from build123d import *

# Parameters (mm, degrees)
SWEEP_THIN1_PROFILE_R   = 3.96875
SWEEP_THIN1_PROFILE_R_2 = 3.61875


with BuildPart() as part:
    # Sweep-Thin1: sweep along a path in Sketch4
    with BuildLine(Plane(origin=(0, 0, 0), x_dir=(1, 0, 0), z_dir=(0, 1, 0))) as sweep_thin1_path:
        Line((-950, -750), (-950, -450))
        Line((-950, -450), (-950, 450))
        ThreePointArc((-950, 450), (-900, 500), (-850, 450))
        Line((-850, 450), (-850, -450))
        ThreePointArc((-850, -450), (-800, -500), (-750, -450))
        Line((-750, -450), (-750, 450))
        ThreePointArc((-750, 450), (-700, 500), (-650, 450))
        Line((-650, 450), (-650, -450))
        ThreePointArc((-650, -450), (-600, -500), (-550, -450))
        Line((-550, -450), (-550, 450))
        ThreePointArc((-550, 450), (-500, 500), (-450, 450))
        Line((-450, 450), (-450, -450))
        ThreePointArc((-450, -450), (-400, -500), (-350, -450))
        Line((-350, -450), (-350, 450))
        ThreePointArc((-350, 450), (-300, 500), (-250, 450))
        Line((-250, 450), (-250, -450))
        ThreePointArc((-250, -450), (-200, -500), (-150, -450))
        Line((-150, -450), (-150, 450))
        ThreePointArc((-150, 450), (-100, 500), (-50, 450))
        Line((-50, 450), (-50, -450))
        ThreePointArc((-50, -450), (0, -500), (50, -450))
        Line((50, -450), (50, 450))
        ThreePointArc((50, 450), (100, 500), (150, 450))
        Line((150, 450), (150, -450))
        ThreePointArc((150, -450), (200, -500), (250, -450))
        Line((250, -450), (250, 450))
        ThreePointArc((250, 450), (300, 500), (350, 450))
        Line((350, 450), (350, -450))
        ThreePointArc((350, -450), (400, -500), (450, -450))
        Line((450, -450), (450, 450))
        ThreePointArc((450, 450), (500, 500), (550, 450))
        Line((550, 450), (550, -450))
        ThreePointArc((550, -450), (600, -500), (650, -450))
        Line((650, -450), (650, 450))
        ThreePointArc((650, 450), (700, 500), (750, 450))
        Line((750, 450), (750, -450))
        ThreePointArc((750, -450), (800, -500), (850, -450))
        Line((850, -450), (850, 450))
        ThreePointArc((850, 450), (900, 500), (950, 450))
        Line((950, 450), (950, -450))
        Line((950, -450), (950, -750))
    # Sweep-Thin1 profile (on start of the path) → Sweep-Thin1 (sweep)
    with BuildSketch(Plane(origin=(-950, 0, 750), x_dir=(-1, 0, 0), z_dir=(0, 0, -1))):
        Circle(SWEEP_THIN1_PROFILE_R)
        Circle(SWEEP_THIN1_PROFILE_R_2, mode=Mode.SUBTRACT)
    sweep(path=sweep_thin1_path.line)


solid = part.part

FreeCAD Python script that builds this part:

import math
import FreeCAD as App
import Part
import Sketcher

V = App.Vector

doc = App.newDocument("Part")
params = doc.addObject("Spreadsheet::Sheet", "Params")
for row, (alias, value) in enumerate([
    ("sketch2_radius", "50 mm"),
    ("sketch2_height", "1200 mm"),
    ("sketch2_height2", "900 mm"),
], start=1):
    params.set(f"A{row}", alias)
    params.set(f"B{row}", "=" + value)
    params.setAlias(f"B{row}", alias)

body = doc.addObject("PartDesign::Body", "Body")

# Sketch on XY plane
sketch1 = body.newObject("Sketcher::SketchObject", "Sketch")
sketch1.AttachmentSupport = (doc.getObject("XY_Plane"), [""])
sketch1.MapMode = "FlatFace"
sketch1.AttachmentOffset = App.Placement(V(0, 0, 750), App.Rotation())
sketch1.addGeometry([
    Part.Circle(V(-950, 0, 0), V(0, 0, 1), 4),
    Part.Circle(V(-950, 0, 0), V(0, 0, 1), 3.6),
], False)
sketch1.addConstraint([
    Sketcher.Constraint("Coincident", 1, 3, 0, 3),
    Sketcher.Constraint("PointOnObject", 0, 3, -1),
    Sketcher.Constraint("DistanceX", 0, 3, -1, 1, 950.0),
    Sketcher.Constraint("Diameter", 0, 7.9375),
    Sketcher.Constraint("Diameter", 1, 7.2375),
])

# Sketch on XZ plane
sketch2 = body.newObject("Sketcher::SketchObject", "Sketch001")
sketch2.AttachmentSupport = (doc.getObject("XZ_Plane"), [""])
sketch2.MapMode = "FlatFace"
sketch2.addGeometry([
    Part.LineSegment(V(-950, 750, 0), V(-950, -450, 0)),  # 0
    Part.ArcOfCircle(Part.Circle(V(-900, -450, 0), V(0, 0, 1), 50), math.radians(180), math.radians(360)),  # 1
    Part.LineSegment(V(-850, -450, 0), V(-850, 450, 0)),  # 2
    Part.ArcOfCircle(Part.Circle(V(-800, 450, 0), V(0, 0, 1), 50), math.radians(0), math.radians(180)),  # 3
    Part.LineSegment(V(-750, 450, 0), V(-750, -450, 0)),  # 4
    Part.ArcOfCircle(Part.Circle(V(-700, -450, 0), V(0, 0, 1), 50), math.radians(180), math.radians(360)),  # 5
    Part.LineSegment(V(-650, -450, 0), V(-650, 450, 0)),  # 6
    Part.ArcOfCircle(Part.Circle(V(-600, 450, 0), V(0, 0, 1), 50), math.radians(0), math.radians(180)),  # 7
    Part.LineSegment(V(-550, 450, 0), V(-550, -450, 0)),  # 8
    Part.ArcOfCircle(Part.Circle(V(-500, -450, 0), V(0, 0, 1), 50), math.radians(180), math.radians(360)),  # 9
    Part.LineSegment(V(-450, -450, 0), V(-450, 450, 0)),  # 10
    Part.ArcOfCircle(Part.Circle(V(-400, 450, 0), V(0, 0, 1), 50), math.radians(0), math.radians(180)),  # 11
    Part.LineSegment(V(-350, 450, 0), V(-350, -450, 0)),  # 12
    Part.ArcOfCircle(Part.Circle(V(-300, -450, 0), V(0, 0, 1), 50), math.radians(180), math.radians(360)),  # 13
    Part.LineSegment(V(-250, -450, 0), V(-250, 450, 0)),  # 14
    Part.ArcOfCircle(Part.Circle(V(-200, 450, 0), V(0, 0, 1), 50), math.radians(0), math.radians(180)),  # 15
    Part.LineSegment(V(-150, 450, 0), V(-150, -450, 0)),  # 16
    Part.ArcOfCircle(Part.Circle(V(-100, -450, 0), V(0, 0, 1), 50), math.radians(180), math.radians(360)),  # 17
    Part.LineSegment(V(-50, -450, 0), V(-50, 450, 0)),  # 18
    Part.ArcOfCircle(Part.Circle(V(0, 450, 0), V(0, 0, 1), 50), math.radians(0), math.radians(180)),  # 19
    Part.LineSegment(V(50, 450, 0), V(50, -450, 0)),  # 20
    Part.ArcOfCircle(Part.Circle(V(100, -450, 0), V(0, 0, 1), 50), math.radians(180), math.radians(360)),  # 21
    Part.LineSegment(V(150, -450, 0), V(150, 450, 0)),  # 22
    Part.ArcOfCircle(Part.Circle(V(200, 450, 0), V(0, 0, 1), 50), math.radians(0), math.radians(180)),  # 23
    Part.LineSegment(V(250, 450, 0), V(250, -450, 0)),  # 24
    Part.ArcOfCircle(Part.Circle(V(300, -450, 0), V(0, 0, 1), 50), math.radians(180), math.radians(360)),  # 25
    Part.LineSegment(V(350, -450, 0), V(350, 450, 0)),  # 26
    Part.ArcOfCircle(Part.Circle(V(400, 450, 0), V(0, 0, 1), 50), math.radians(0), math.radians(180)),  # 27
    Part.LineSegment(V(450, 450, 0), V(450, -450, 0)),  # 28
    Part.ArcOfCircle(Part.Circle(V(500, -450, 0), V(0, 0, 1), 50), math.radians(180), math.radians(360)),  # 29
    Part.LineSegment(V(550, -450, 0), V(550, 450, 0)),  # 30
    Part.ArcOfCircle(Part.Circle(V(600, 450, 0), V(0, 0, 1), 50), math.radians(0), math.radians(180)),  # 31
    Part.LineSegment(V(650, 450, 0), V(650, -450, 0)),  # 32
    Part.ArcOfCircle(Part.Circle(V(700, -450, 0), V(0, 0, 1), 50), math.radians(180), math.radians(360)),  # 33
    Part.LineSegment(V(750, -450, 0), V(750, 450, 0)),  # 34
    Part.ArcOfCircle(Part.Circle(V(800, 450, 0), V(0, 0, 1), 50), math.radians(0), math.radians(180)),  # 35
    Part.LineSegment(V(850, 450, 0), V(850, -450, 0)),  # 36
    Part.ArcOfCircle(Part.Circle(V(900, -450, 0), V(0, 0, 1), 50), math.radians(180), math.radians(360)),  # 37
    Part.LineSegment(V(950, -450, 0), V(950, 750, 0)),  # 38
], False)
sketch2.addConstraint([
    Sketcher.Constraint("Tangent", 0, 2, 1, 1),
    Sketcher.Constraint("Tangent", 1, 2, 2, 1),
    Sketcher.Constraint("Tangent", 2, 2, 3, 2),
    Sketcher.Constraint("Tangent", 3, 1, 4, 1),
    Sketcher.Constraint("Tangent", 4, 2, 5, 1),
    Sketcher.Constraint("Tangent", 5, 2, 6, 1),
    Sketcher.Constraint("Tangent", 6, 2, 7, 2),
    Sketcher.Constraint("Tangent", 7, 1, 8, 1),
    Sketcher.Constraint("Tangent", 8, 2, 9, 1),
    Sketcher.Constraint("Tangent", 9, 2, 10, 1),
    Sketcher.Constraint("Tangent", 10, 2, 11, 2),
    Sketcher.Constraint("Tangent", 11, 1, 12, 1),
    Sketcher.Constraint("Tangent", 12, 2, 13, 1),
    Sketcher.Constraint("Tangent", 13, 2, 14, 1),
    Sketcher.Constraint("Tangent", 14, 2, 15, 2),
    Sketcher.Constraint("Tangent", 15, 1, 16, 1),
    Sketcher.Constraint("Tangent", 16, 2, 17, 1),
    Sketcher.Constraint("Tangent", 17, 2, 18, 1),
    Sketcher.Constraint("Tangent", 18, 2, 19, 2),
    Sketcher.Constraint("Tangent", 19, 1, 20, 1),
    Sketcher.Constraint("Tangent", 20, 2, 21, 1),
    Sketcher.Constraint("Tangent", 21, 2, 22, 1),
    Sketcher.Constraint("Tangent", 22, 2, 23, 2),
    Sketcher.Constraint("Tangent", 23, 1, 24, 1),
    Sketcher.Constraint("Tangent", 24, 2, 25, 1),
    Sketcher.Constraint("Tangent", 25, 2, 26, 1),
    Sketcher.Constraint("Tangent", 26, 2, 27, 2),
    Sketcher.Constraint("Tangent", 27, 1, 28, 1),
    Sketcher.Constraint("Tangent", 28, 2, 29, 1),
    Sketcher.Constraint("Tangent", 29, 2, 30, 1),
    Sketcher.Constraint("Tangent", 30, 2, 31, 2),
    Sketcher.Constraint("Tangent", 31, 1, 32, 1),
    Sketcher.Constraint("Tangent", 32, 2, 33, 1),
    Sketcher.Constraint("Tangent", 33, 2, 34, 1),
    Sketcher.Constraint("Tangent", 34, 2, 35, 2),
    Sketcher.Constraint("Tangent", 35, 1, 36, 1),
    Sketcher.Constraint("Tangent", 36, 2, 37, 1),
    Sketcher.Constraint("Tangent", 37, 2, 38, 1),
    Sketcher.Constraint("Vertical", 0),
    Sketcher.Constraint("Vertical", 2),
    Sketcher.Constraint("Vertical", 4),
    Sketcher.Constraint("Vertical", 6),
    Sketcher.Constraint("Vertical", 8),
    Sketcher.Constraint("Vertical", 10),
    Sketcher.Constraint("Vertical", 12),
    Sketcher.Constraint("Vertical", 14),
    Sketcher.Constraint("Vertical", 16),
    Sketcher.Constraint("Vertical", 18),
    Sketcher.Constraint("Vertical", 20),
    Sketcher.Constraint("Vertical", 22),
    Sketcher.Constraint("Vertical", 24),
    Sketcher.Constraint("Vertical", 26),
    Sketcher.Constraint("Vertical", 28),
    Sketcher.Constraint("Vertical", 30),
    Sketcher.Constraint("Vertical", 32),
    Sketcher.Constraint("Vertical", 34),
    Sketcher.Constraint("Vertical", 36),
    Sketcher.Constraint("Vertical", 38),
    Sketcher.Constraint("Equal", 1, 3),
    Sketcher.Constraint("Equal", 3, 5),
    Sketcher.Constraint("Equal", 5, 7),
    Sketcher.Constraint("Equal", 7, 9),
    Sketcher.Constraint("Equal", 9, 11),
    Sketcher.Constraint("Equal", 11, 13),
    Sketcher.Constraint("Equal", 13, 15),
    Sketcher.Constraint("Equal", 15, 17),
    Sketcher.Constraint("Equal", 17, 19),
    Sketcher.Constraint("Equal", 19, 21),
    Sketcher.Constraint("Equal", 21, 23),
    Sketcher.Constraint("Equal", 23, 25),
    Sketcher.Constraint("Equal", 25, 27),
    Sketcher.Constraint("Equal", 27, 29),
    Sketcher.Constraint("Equal", 29, 31),
    Sketcher.Constraint("Equal", 31, 33),
    Sketcher.Constraint("Equal", 33, 35),
    Sketcher.Constraint("Equal", 35, 37),
    Sketcher.Constraint("Symmetric", 17, 2, 19, 1, -1, 1),
    Sketcher.Constraint("Horizontal", 1, 3, 5, 3),
    Sketcher.Constraint("Horizontal", 3, 3, 7, 3),
    Sketcher.Constraint("Horizontal", 5, 3, 9, 3),
    Sketcher.Constraint("Horizontal", 7, 3, 11, 3),
    Sketcher.Constraint("Horizontal", 9, 3, 13, 3),
    Sketcher.Constraint("Horizontal", 11, 3, 15, 3),
    Sketcher.Constraint("Horizontal", 13, 3, 17, 3),
    Sketcher.Constraint("Horizontal", 15, 3, 19, 3),
    Sketcher.Constraint("Horizontal", 17, 3, 21, 3),
    Sketcher.Constraint("Horizontal", 19, 3, 23, 3),
    Sketcher.Constraint("Horizontal", 21, 3, 25, 3),
    Sketcher.Constraint("Horizontal", 23, 3, 27, 3),
    Sketcher.Constraint("Horizontal", 25, 3, 29, 3),
    Sketcher.Constraint("Horizontal", 27, 3, 31, 3),
    Sketcher.Constraint("Horizontal", 29, 3, 33, 3),
    Sketcher.Constraint("Horizontal", 31, 3, 35, 3),
    Sketcher.Constraint("Horizontal", 33, 3, 37, 3),
    Sketcher.Constraint("Horizontal", 0, 1, 38, 2),
    Sketcher.Constraint("Radius", 1, 50.0),
    Sketcher.Constraint("DistanceY", 0, 2, 0, 1, 1200.0),
    Sketcher.Constraint("DistanceY", 2, 1, 2, 2, 900.0),
])
sketch2.setExpression("Constraints[95]", "Params.sketch2_radius")
sketch2.setExpression("Constraints[96]", "Params.sketch2_height")
sketch2.setExpression("Constraints[97]", "Params.sketch2_height2")
doc.recompute()

additivepipe = body.newObject("PartDesign::AdditivePipe", "AdditivePipe")
additivepipe.Profile = sketch1
additivepipe.Spine = (sketch2, ["Edge1", "Edge2", "Edge3", "Edge4", "Edge5", "Edge6", "Edge7", "Edge8", "Edge9", "Edge10", "Edge11", "Edge12", "Edge13", "Edge14", "Edge15", "Edge16", "Edge17", "Edge18", "Edge19", "Edge20", "Edge21", "Edge22", "Edge23", "Edge24", "Edge25", "Edge26", "Edge27", "Edge28", "Edge29", "Edge30", "Edge31", "Edge32", "Edge33", "Edge34", "Edge35", "Edge36", "Edge37", "Edge38", "Edge39"])

doc.recompute()
